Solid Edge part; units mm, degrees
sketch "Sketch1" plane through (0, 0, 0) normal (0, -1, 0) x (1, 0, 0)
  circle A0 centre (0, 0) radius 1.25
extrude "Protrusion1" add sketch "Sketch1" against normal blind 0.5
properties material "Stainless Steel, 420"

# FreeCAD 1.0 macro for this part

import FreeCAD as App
import Part
import Sketcher

doc = App.newDocument("Part")
body = doc.addObject("PartDesign::Body", "Body")

# Sketch on XZ plane
sketch1 = body.newObject("Sketcher::SketchObject", "Sketch")
sketch1.AttachmentSupport = (doc.getObject("XZ_Plane"), [""])
sketch1.MapMode = "FlatFace"
sketch1.addGeometry(Part.Circle(App.Vector(0, 0, 0), App.Vector(0, 0, 1), 1.25), False)
sketch1.addConstraint(Sketcher.Constraint("Coincident", 0, 3, -1, 1))
sketch1.addConstraint(Sketcher.Constraint("Diameter", 0, 2.5))
pad1 = body.newObject("PartDesign::Pad", "Pad")
pad1.Profile = sketch1
pad1.Length = 0.5
pad1.Reversed = True

doc.recompute()
